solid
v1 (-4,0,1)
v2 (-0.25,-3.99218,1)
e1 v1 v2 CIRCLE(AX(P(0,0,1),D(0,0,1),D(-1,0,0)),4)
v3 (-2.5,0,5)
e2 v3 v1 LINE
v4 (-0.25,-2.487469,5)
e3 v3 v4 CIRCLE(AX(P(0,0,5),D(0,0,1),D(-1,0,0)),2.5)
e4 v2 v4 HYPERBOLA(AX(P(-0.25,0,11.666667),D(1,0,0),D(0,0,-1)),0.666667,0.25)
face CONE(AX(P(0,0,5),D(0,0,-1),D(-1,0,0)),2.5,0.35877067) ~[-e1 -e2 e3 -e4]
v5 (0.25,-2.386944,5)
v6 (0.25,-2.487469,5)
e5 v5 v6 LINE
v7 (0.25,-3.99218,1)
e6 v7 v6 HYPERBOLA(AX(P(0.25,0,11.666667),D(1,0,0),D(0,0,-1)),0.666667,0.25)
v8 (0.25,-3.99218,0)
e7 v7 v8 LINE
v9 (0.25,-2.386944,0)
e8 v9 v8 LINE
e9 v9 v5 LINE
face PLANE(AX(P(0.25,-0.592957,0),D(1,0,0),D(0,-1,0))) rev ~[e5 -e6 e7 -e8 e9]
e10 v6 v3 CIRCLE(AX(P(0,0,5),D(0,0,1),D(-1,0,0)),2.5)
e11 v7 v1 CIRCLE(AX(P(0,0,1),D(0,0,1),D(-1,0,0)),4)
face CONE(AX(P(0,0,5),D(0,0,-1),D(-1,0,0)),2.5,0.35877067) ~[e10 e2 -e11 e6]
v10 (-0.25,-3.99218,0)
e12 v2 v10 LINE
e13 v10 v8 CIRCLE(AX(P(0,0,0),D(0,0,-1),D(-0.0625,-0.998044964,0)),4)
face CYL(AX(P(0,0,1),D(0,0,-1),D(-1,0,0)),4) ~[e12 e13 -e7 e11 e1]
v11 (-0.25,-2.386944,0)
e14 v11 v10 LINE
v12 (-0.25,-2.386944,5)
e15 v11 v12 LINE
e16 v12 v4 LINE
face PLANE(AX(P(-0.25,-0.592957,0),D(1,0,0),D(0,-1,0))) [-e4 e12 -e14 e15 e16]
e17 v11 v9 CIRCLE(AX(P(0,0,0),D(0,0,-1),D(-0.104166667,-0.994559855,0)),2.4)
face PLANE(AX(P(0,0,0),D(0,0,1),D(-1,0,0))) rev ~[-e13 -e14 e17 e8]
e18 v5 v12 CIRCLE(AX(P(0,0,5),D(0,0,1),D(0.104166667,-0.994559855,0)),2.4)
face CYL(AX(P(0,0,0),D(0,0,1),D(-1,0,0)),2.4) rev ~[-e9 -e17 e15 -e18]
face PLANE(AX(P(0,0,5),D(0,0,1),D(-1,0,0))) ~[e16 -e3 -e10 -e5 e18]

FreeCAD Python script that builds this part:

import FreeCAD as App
import Part
import Sketcher
from FreeCAD import Vector
Q = App.Units.Quantity

doc = App.newDocument("Part")
body = doc.addObject("PartDesign::Body", "Body")

sketch1 = doc.addObject("Sketcher::SketchObject", "Sketch")
body.addObject(sketch1)
sketch1.AttachmentSupport = (doc.XZ_Plane, [""])
sketch1.MapMode = "FlatFace"
sketch1.addGeometry([
    Part.LineSegment(Vector(-2.4, 0, 0), Vector(-2.4, 5, 0)),
    Part.LineSegment(Vector(-2.4, 5, 0), Vector(-2.5, 5, 0)),
    Part.LineSegment(Vector(-2.5, 5, 0), Vector(-4, 1, 0)),
    Part.LineSegment(Vector(-4, 1, 0), Vector(-4, 0, 0)),
    Part.LineSegment(Vector(-4, 0, 0), Vector(-2.4, 0, 0)),
], False)
sketch1.addConstraint([
    Sketcher.Constraint("Coincident", 0, 2, 1, 1),
    Sketcher.Constraint("Coincident", 1, 2, 2, 1),
    Sketcher.Constraint("Coincident", 2, 2, 3, 1),
    Sketcher.Constraint("Coincident", 3, 2, 4, 1),
    Sketcher.Constraint("Coincident", 4, 2, 0, 1),
    Sketcher.Constraint("Vertical", 0),
    Sketcher.Constraint("Horizontal", 1),
    Sketcher.Constraint("Vertical", 3),
    Sketcher.Constraint("Horizontal", 4),
    Sketcher.Constraint("PointOnObject", 3, 2, -1),
    Sketcher.Constraint("DistanceY", 0, 1, 0, 2, Q("5 mm")),
    Sketcher.Constraint("DistanceY", 3, 2, 3, 1, Q("1 mm")),
    Sketcher.Constraint("DistanceX", 1, 2, 1, 1, Q("0.1 mm")),
    Sketcher.Constraint("DistanceX", 4, 1, 4, 2, Q("1.6 mm")),
    Sketcher.Constraint("DistanceX", 2, 2, -1, 1, Q("4 mm")),
])
revolution = doc.addObject("PartDesign::Revolution", "Revolution")
body.addObject(revolution)
revolution.Profile = sketch1
revolution.ReferenceAxis = (sketch1, ["V_Axis"])
revolution.Angle = 360

sketch2 = doc.addObject("Sketcher::SketchObject", "Sketch001")
body.addObject(sketch2)
sketch2.AttachmentSupport = (doc.XY_Plane, [""])
sketch2.MapMode = "FlatFace"
sketch2.addGeometry([
    Part.LineSegment(Vector(-0.2, -5.6, 0), Vector(-0.2, -0.6, 0)),
    Part.LineSegment(Vector(-0.2, -0.6, 0), Vector(0.2, -0.6, 0)),
    Part.LineSegment(Vector(0.2, -0.6, 0), Vector(0.2, -5.6, 0)),
    Part.LineSegment(Vector(0.2, -5.6, 0), Vector(-0.2, -5.6, 0)),
], False)
sketch2.addConstraint([
    Sketcher.Constraint("Coincident", 0, 2, 1, 1),
    Sketcher.Constraint("Coincident", 1, 2, 2, 1),
    Sketcher.Constraint("Coincident", 2, 2, 3, 1),
    Sketcher.Constraint("Coincident", 3, 2, 0, 1),
    Sketcher.Constraint("Vertical", 0),
    Sketcher.Constraint("Horizontal", 1),
    Sketcher.Constraint("Vertical", 2),
    Sketcher.Constraint("Horizontal", 3),
    Sketcher.Constraint("DistanceY", 0, 1, 0, 2, Q("5 mm")),
    Sketcher.Constraint("DistanceX", 1, 1, 1, 2, Q("0.5 mm")),
    Sketcher.Constraint("DistanceX", 0, 2, -1, 1, Q("0.25 mm")),
    Sketcher.Constraint("DistanceY", 0, 2, -1, 1, Q("0.592957 mm")),
])
pocket1 = doc.addObject("PartDesign::Pocket", "Pocket")
body.addObject(pocket1)
pocket1.Profile = sketch2
pocket1.Length = 25
pocket1.Reversed = True

doc.recompute()
